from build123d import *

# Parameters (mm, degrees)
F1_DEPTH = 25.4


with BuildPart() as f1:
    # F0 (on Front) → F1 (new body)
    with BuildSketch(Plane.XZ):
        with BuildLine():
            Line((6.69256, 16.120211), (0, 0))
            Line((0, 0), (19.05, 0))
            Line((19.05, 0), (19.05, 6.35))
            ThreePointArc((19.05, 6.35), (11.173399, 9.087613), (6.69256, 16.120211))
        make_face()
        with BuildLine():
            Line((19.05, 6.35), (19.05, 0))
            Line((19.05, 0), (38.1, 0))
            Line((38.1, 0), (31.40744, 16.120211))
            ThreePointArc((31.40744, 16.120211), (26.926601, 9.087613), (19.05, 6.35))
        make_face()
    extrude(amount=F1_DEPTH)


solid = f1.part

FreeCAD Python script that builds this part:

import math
import FreeCAD as App
import Part
import Sketcher
Q = App.Units.Quantity

doc = App.newDocument("Part")
body = doc.addObject("PartDesign::Body", "Body")

# Sketch on XZ plane
sketch1 = body.newObject("Sketcher::SketchObject", "Sketch")
sketch1.AttachmentSupport = (doc.getObject("XZ_Plane"), [""])
sketch1.MapMode = "FlatFace"
sketch1.addGeometry([
    Part.LineSegment(App.Vector(7, 16, 0), App.Vector(0, 0, 0)),  # 0
    Part.LineSegment(App.Vector(0, 0, 0), App.Vector(38, 0, 0)),  # 1
    Part.LineSegment(App.Vector(38, 0, 0), App.Vector(31, 16, 0)),  # 2
    Part.ArcOfCircle(Part.Circle(App.Vector(19, 19, 0), App.Vector(0, 0, 1), 13), math.radians(-90), math.radians(-13)),  # 3
    Part.ArcOfCircle(Part.Circle(App.Vector(19, 19, 0), App.Vector(0, 0, 1), 13), math.radians(-167), math.radians(-90)),  # 4
], False)
sketch1.addConstraint([
    Sketcher.Constraint("Coincident", 0, 2, 1, 1),
    Sketcher.Constraint("Coincident", 1, 2, 2, 1),
    Sketcher.Constraint("Coincident", 2, 2, 3, 2),
    Sketcher.Constraint("Tangent", 3, 1, 4, 2),
    Sketcher.Constraint("Coincident", 4, 1, 0, 1),
    Sketcher.Constraint("Horizontal", 1),
    Sketcher.Constraint("Coincident", 0, 2, -1, 1),
    Sketcher.Constraint("Equal", 3, 4),
    Sketcher.Constraint("Horizontal", 2, 2, 4, 1),
    Sketcher.Constraint("Vertical", 4, 3, 3, 1),
    Sketcher.Constraint("Equal", 0, 2),
    Sketcher.Constraint("Radius", 3, Q("0.5 in")),
    Sketcher.Constraint("DistanceX", 1, 1, 1, 2, Q("1.5 in")),
    Sketcher.Constraint("DistanceY", -1, 1, 3, 3, Q("0.75 in")),
    Sketcher.Constraint("Distance", 0, Q("17.454271 mm")),
])
pad1 = body.newObject("PartDesign::Pad", "Pad")
pad1.Profile = sketch1
pad1.Length = Q("1 in")

doc.recompute()
